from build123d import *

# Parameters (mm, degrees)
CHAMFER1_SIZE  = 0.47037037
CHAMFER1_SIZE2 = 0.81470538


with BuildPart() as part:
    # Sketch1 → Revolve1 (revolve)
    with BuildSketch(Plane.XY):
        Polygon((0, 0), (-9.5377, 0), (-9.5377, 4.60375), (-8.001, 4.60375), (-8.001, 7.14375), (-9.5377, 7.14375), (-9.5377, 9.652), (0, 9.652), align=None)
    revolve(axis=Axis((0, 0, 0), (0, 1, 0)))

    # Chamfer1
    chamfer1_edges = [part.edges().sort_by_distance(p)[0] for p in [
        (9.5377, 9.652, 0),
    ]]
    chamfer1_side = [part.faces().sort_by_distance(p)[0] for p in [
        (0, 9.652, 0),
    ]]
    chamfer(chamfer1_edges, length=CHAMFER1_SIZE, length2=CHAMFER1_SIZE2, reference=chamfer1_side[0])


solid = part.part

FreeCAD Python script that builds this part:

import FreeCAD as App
import Part
import Sketcher

V = App.Vector
Q = App.Units.Quantity


def edges_at(feature, points):
    """Names of the edges that pass closest to the given points."""
    edges = feature.Shape.Edges
    near = lambda p: min(range(len(edges)), key=lambda i: edges[i].distToShape(Part.Vertex(*p))[0])
    return sorted({f"Edge{near(p) + 1}" for p in points})


def add_polygon(sketch, points):
    """Adds a closed chain of lines whose ends are joined by coincident constraints."""
    first, n = sketch.GeometryCount, len(points)
    for a, b in zip(points, points[1:] + points[:1]):
        sketch.addGeometry(Part.LineSegment(App.Vector(*a, 0), App.Vector(*b, 0)), False)
    for i in range(n):
        sketch.addConstraint(Sketcher.Constraint("Coincident", first + i, 2, first + (i + 1) % n, 1))

doc = App.newDocument("Part")
body = doc.addObject("PartDesign::Body", "Body")

sketch1 = body.newObject("Sketcher::SketchObject", "Sketch")
sketch1.AttachmentSupport = (doc.getObject("XY_Plane"), [""])
sketch1.MapMode = "FlatFace"
add_polygon(sketch1, [(-9.5, 0), (0, 0), (0, 9.7), (-9.5, 9.7), (-9.5, 7.1), (-8, 7.1), (-8, 4.6), (-9.5, 4.6)])
sketch1.addConstraint([
    Sketcher.Constraint("Horizontal", 0),
    Sketcher.Constraint("Vertical", 1),
    Sketcher.Constraint("Horizontal", 2),
    Sketcher.Constraint("Vertical", 3),
    Sketcher.Constraint("Horizontal", 4),
    Sketcher.Constraint("Vertical", 5),
    Sketcher.Constraint("Horizontal", 6),
    Sketcher.Constraint("Vertical", 7),
    Sketcher.Constraint("Coincident", 0, 2, -1, 1),
    Sketcher.Constraint("Vertical", 3, 2, 6, 2),
    Sketcher.Constraint("DistanceY", 5, 2, 5, 1, Q("0.1 in")),
    Sketcher.Constraint("DistanceY", 1, 1, 1, 2, Q("0.38 in")),
    Sketcher.Constraint("DistanceX", 0, 1, 0, 2, Q("0.3755 in")),
    Sketcher.Constraint("DistanceX", 4, 1, 4, 2, Q("0.0605 in")),
    Sketcher.Constraint("DistanceY", -1, 1, 3, 2, Q("0.28125 in")),
])
revolution = body.newObject("PartDesign::Revolution", "Revolution")
revolution.Profile = sketch1
revolution.ReferenceAxis = (sketch1, ["V_Axis"])
revolution.Angle = 360
doc.recompute()

chamfer = body.newObject("PartDesign::Chamfer", "Chamfer")
chamfer.Base = (revolution, edges_at(revolution, [(9.538, 9.652, 0)]))
chamfer.ChamferType = "Two distances"
chamfer.Size = 0.47037
chamfer.Size2 = 0.814705

doc.recompute()
